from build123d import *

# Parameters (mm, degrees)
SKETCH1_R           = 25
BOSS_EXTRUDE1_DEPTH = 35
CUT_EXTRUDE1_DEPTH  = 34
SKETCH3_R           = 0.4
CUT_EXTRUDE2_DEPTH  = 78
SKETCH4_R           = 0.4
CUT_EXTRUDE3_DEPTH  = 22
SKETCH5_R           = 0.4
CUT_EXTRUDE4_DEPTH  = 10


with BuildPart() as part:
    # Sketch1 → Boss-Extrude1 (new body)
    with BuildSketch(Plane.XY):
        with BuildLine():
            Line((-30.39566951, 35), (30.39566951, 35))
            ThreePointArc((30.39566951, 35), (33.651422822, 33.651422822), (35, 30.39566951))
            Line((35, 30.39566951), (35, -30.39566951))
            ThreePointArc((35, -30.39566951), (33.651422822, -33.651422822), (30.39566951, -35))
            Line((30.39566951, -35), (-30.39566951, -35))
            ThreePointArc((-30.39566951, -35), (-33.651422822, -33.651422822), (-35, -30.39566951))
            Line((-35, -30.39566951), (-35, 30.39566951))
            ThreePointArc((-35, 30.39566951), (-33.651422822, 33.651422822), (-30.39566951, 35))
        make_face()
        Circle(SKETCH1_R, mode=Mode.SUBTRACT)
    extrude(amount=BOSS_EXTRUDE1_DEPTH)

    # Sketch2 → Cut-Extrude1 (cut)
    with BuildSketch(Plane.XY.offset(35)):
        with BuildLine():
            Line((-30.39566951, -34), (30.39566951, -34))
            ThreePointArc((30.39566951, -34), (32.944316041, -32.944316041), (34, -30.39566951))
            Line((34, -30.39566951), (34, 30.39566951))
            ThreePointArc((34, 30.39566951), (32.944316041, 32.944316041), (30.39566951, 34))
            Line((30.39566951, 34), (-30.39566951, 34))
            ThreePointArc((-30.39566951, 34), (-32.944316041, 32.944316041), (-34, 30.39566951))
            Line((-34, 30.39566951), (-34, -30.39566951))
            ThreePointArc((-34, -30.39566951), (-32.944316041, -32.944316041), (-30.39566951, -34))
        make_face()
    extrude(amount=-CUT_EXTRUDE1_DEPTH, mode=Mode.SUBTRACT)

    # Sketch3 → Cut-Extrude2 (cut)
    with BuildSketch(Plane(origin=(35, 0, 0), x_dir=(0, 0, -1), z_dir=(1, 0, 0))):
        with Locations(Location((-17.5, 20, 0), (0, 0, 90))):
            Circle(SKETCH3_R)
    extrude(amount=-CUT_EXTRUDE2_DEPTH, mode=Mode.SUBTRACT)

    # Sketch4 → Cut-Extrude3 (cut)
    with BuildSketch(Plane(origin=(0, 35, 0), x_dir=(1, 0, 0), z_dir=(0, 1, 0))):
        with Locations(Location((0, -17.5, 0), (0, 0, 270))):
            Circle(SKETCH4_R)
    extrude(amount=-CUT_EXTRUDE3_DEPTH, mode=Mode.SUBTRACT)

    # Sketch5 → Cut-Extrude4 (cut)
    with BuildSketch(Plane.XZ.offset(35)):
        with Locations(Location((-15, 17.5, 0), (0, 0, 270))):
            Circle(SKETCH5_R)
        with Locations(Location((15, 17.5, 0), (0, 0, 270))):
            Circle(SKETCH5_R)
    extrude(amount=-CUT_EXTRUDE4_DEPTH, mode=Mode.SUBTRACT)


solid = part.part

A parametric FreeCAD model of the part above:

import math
import FreeCAD as App
import Part
import Sketcher
from FreeCAD import Vector
Q = App.Units.Quantity

doc = App.newDocument("Part")
body = doc.addObject("PartDesign::Body", "Body")

# Sketch on XY plane
sketch1 = body.newObject("Sketcher::SketchObject", "Sketch")
sketch1.AttachmentSupport = (doc.getObject("XY_Plane"), [""])
sketch1.MapMode = "FlatFace"
sketch1.addGeometry([
    Part.LineSegment(Vector(30.4, 35, 0), Vector(-30.4, 35, 0)),  # 0
    Part.ArcOfCircle(Part.Circle(Vector(-30.4, 30.4, 0), Vector(0, 0, 1), 4.6), math.radians(90), math.radians(180)),  # 1
    Part.LineSegment(Vector(-35, 30.4, 0), Vector(-35, -30.4, 0)),  # 2
    Part.ArcOfCircle(Part.Circle(Vector(-30.4, -30.4, 0), Vector(0, 0, 1), 4.6), math.radians(-180), math.radians(-90)),  # 3
    Part.LineSegment(Vector(-30.4, -35, 0), Vector(30.4, -35, 0)),  # 4
    Part.ArcOfCircle(Part.Circle(Vector(30.4, -30.4, 0), Vector(0, 0, 1), 4.6), math.radians(-90), math.radians(0)),  # 5
    Part.LineSegment(Vector(35, -30.4, 0), Vector(35, 30.4, 0)),  # 6
    Part.ArcOfCircle(Part.Circle(Vector(30.4, 30.4, 0), Vector(0, 0, 1), 4.6), math.radians(0), math.radians(90)),  # 7
    Part.Circle(Vector(0, 0, 0), Vector(0, 0, 1), 25),  # 8
], False)
sketch1.addConstraint([
    Sketcher.Constraint("Tangent", 0, 2, 1, 1),
    Sketcher.Constraint("Tangent", 1, 2, 2, 1),
    Sketcher.Constraint("Tangent", 2, 2, 3, 1),
    Sketcher.Constraint("Tangent", 3, 2, 4, 1),
    Sketcher.Constraint("Tangent", 4, 2, 5, 1),
    Sketcher.Constraint("Tangent", 5, 2, 6, 1),
    Sketcher.Constraint("Tangent", 6, 2, 7, 1),
    Sketcher.Constraint("Tangent", 7, 2, 0, 1),
    Sketcher.Constraint("Horizontal", 0),
    Sketcher.Constraint("Vertical", 2),
    Sketcher.Constraint("Horizontal", 4),
    Sketcher.Constraint("Vertical", 6),
    Sketcher.Constraint("Coincident", 8, 3, -1, 1),
    Sketcher.Constraint("Equal", 1, 3),
    Sketcher.Constraint("Equal", 3, 5),
    Sketcher.Constraint("Equal", 5, 7),
    Sketcher.Constraint("Symmetric", 1, 3, 5, 3, -1, 1),
    Sketcher.Constraint("Equal", 4, 2),
    Sketcher.Constraint("Diameter", 8, Q("50 mm")),
    Sketcher.Constraint("DistanceY", -1, 1, 0, 2, Q("35 mm")),
    Sketcher.Constraint("Radius", 1, Q("4.60433 mm")),
])
pad1 = body.newObject("PartDesign::Pad", "Pad")
pad1.Profile = sketch1
pad1.Length = 35

# Sketch on XY plane
sketch2 = body.newObject("Sketcher::SketchObject", "Sketch001")
sketch2.AttachmentSupport = (doc.getObject("XY_Plane"), [""])
sketch2.MapMode = "FlatFace"
sketch2.AttachmentOffset = App.Placement(Vector(0, 0, 35), App.Rotation())
sketch2.addGeometry([
    Part.LineSegment(Vector(-30.4, -34, 0), Vector(30.4, -34, 0)),  # 0
    Part.ArcOfCircle(Part.Circle(Vector(30.4, -30.4, 0), Vector(0, 0, 1), 3.6), math.radians(-90), math.radians(0)),  # 1
    Part.LineSegment(Vector(34, -30.4, 0), Vector(34, 30.4, 0)),  # 2
    Part.ArcOfCircle(Part.Circle(Vector(30.4, 30.4, 0), Vector(0, 0, 1), 3.6), math.radians(0), math.radians(90)),  # 3
    Part.LineSegment(Vector(30.4, 34, 0), Vector(-30.4, 34, 0)),  # 4
    Part.ArcOfCircle(Part.Circle(Vector(-30.4, 30.4, 0), Vector(0, 0, 1), 3.6), math.radians(90), math.radians(180)),  # 5
    Part.LineSegment(Vector(-34, 30.4, 0), Vector(-34, -30.4, 0)),  # 6
    Part.ArcOfCircle(Part.Circle(Vector(-30.4, -30.4, 0), Vector(0, 0, 1), 3.6), math.radians(180), math.radians(270)),  # 7
], False)
sketch2.addConstraint([
    Sketcher.Constraint("Tangent", 0, 2, 1, 1),
    Sketcher.Constraint("Tangent", 1, 2, 2, 1),
    Sketcher.Constraint("Tangent", 2, 2, 3, 1),
    Sketcher.Constraint("Tangent", 3, 2, 4, 1),
    Sketcher.Constraint("Tangent", 4, 2, 5, 1),
    Sketcher.Constraint("Tangent", 5, 2, 6, 1),
    Sketcher.Constraint("Tangent", 6, 2, 7, 1),
    Sketcher.Constraint("Tangent", 7, 2, 0, 1),
    Sketcher.Constraint("Horizontal", 0),
    Sketcher.Constraint("Vertical", 2),
    Sketcher.Constraint("Horizontal", 4),
    Sketcher.Constraint("Vertical", 6),
    Sketcher.Constraint("Equal", 1, 3),
    Sketcher.Constraint("Equal", 3, 5),
    Sketcher.Constraint("Equal", 5, 7),
    Sketcher.Constraint("Symmetric", 1, 3, 5, 3, -1, 1),
    Sketcher.Constraint("Equal", 4, 2),
    Sketcher.Constraint("DistanceY", 0, 2, -1, 1, Q("34 mm")),
    Sketcher.Constraint("Radius", 1, Q("3.60433 mm")),
])
pocket1 = body.newObject("PartDesign::Pocket", "Pocket")
pocket1.Profile = sketch2
pocket1.Length = 34

# Sketch on YZ plane
sketch3 = body.newObject("Sketcher::SketchObject", "Sketch002")
sketch3.AttachmentSupport = (doc.getObject("YZ_Plane"), [""])
sketch3.MapMode = "FlatFace"
sketch3.AttachmentOffset = App.Placement(Vector(0, 0, 35), App.Rotation())
sketch3.addGeometry(Part.Circle(Vector(20, 17.5, 0), Vector(0, 0, 1), 0.4), False)
sketch3.addConstraint([
    Sketcher.Constraint("Diameter", 0, Q("0.8 mm")),
    Sketcher.Constraint("DistanceX", -1, 1, 0, 3, Q("20 mm")),
    Sketcher.Constraint("DistanceY", -1, 1, 0, 3, Q("17.5 mm")),
])
pocket2 = body.newObject("PartDesign::Pocket", "Pocket001")
pocket2.Profile = sketch3
pocket2.Length = 78

# Sketch on XZ plane
sketch4 = body.newObject("Sketcher::SketchObject", "Sketch003")
sketch4.AttachmentSupport = (doc.getObject("XZ_Plane"), [""])
sketch4.MapMode = "FlatFace"
sketch4.AttachmentOffset = App.Placement(Vector(0, 0, -35), App.Rotation())
sketch4.addGeometry(Part.Circle(Vector(0, 17.5, 0), Vector(0, 0, 1), 0.4), False)
sketch4.addConstraint([
    Sketcher.Constraint("PointOnObject", 0, 3, -2),
    Sketcher.Constraint("Diameter", 0, Q("0.8 mm")),
    Sketcher.Constraint("DistanceY", -1, 1, 0, 3, Q("17.5 mm")),
])
pocket3 = body.newObject("PartDesign::Pocket", "Pocket002")
pocket3.Profile = sketch4
pocket3.Length = 22
pocket3.Reversed = True

# Sketch on XZ plane
sketch5 = body.newObject("Sketcher::SketchObject", "Sketch004")
sketch5.AttachmentSupport = (doc.getObject("XZ_Plane"), [""])
sketch5.MapMode = "FlatFace"
sketch5.AttachmentOffset = App.Placement(Vector(0, 0, 35), App.Rotation())
sketch5.addGeometry([
    Part.Circle(Vector(-15, 17.5, 0), Vector(0, 0, 1), 0.4),
    Part.Circle(Vector(15, 17.5, 0), Vector(0, 0, 1), 0.4),
], False)
sketch5.addConstraint([
    Sketcher.Constraint("Equal", 0, 1),
    Sketcher.Constraint("Symmetric", 0, 3, 1, 3, -2),
    Sketcher.Constraint("Diameter", 0, Q("0.8 mm")),
    Sketcher.Constraint("DistanceX", 0, 3, -1, 1, Q("15 mm")),
    Sketcher.Constraint("DistanceY", -1, 1, 0, 3, Q("17.5 mm")),
])
pocket4 = body.newObject("PartDesign::Pocket", "Pocket003")
pocket4.Profile = sketch5
pocket4.Length = 10

doc.recompute()
